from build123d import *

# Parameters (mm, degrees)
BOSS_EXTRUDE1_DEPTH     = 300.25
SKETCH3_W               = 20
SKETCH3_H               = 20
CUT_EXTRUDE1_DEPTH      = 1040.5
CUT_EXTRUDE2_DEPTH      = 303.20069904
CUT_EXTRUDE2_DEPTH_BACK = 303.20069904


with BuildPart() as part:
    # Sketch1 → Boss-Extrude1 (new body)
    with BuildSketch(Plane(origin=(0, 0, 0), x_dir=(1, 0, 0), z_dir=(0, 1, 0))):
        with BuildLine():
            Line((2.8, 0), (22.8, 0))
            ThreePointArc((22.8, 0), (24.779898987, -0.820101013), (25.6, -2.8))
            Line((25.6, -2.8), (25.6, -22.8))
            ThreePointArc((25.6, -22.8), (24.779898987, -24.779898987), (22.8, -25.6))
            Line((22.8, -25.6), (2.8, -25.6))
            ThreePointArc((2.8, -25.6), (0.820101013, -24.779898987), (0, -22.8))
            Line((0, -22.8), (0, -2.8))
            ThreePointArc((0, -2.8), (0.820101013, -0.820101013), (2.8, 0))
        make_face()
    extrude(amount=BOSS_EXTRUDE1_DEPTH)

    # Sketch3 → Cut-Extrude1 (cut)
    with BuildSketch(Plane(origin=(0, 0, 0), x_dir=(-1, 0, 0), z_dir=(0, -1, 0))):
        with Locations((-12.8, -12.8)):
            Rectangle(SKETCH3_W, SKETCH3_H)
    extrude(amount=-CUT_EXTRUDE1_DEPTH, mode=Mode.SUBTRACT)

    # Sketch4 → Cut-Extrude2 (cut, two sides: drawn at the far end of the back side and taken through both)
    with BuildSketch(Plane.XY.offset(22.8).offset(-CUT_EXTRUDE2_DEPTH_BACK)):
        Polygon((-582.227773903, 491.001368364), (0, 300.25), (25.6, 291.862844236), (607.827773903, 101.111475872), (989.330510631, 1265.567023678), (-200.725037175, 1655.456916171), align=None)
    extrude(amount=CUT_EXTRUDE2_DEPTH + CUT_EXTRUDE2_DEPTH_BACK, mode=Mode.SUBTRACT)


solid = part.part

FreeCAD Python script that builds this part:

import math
import FreeCAD as App
import Part
import Sketcher

V = App.Vector
Q = App.Units.Quantity

doc = App.newDocument("Part")
body = doc.addObject("PartDesign::Body", "Body")

sketch1 = body.newObject("Sketcher::SketchObject", "Sketch")
sketch1.AttachmentSupport = (doc.getObject("XZ_Plane"), [""])
sketch1.MapMode = "FlatFace"
sketch1.addGeometry([
    Part.LineSegment(V(22.8, 0, 0), V(2.8, 0, 0)),
    Part.ArcOfCircle(Part.Circle(V(2.8, 2.8, 0), V(0, 0, 1), 2.8), math.radians(-180), math.radians(-90)),
    Part.LineSegment(V(0, 2.8, 0), V(0, 22.8, 0)),
    Part.ArcOfCircle(Part.Circle(V(2.8, 22.8, 0), V(0, 0, 1), 2.8), math.radians(90), math.radians(180)),
    Part.LineSegment(V(2.8, 25.6, 0), V(22.8, 25.6, 0)),
    Part.ArcOfCircle(Part.Circle(V(22.8, 22.8, 0), V(0, 0, 1), 2.8), math.radians(0), math.radians(90)),
    Part.LineSegment(V(25.6, 22.8, 0), V(25.6, 2.8, 0)),
    Part.ArcOfCircle(Part.Circle(V(22.8, 2.8, 0), V(0, 0, 1), 2.8), math.radians(-90), math.radians(0)),
], False)
sketch1.addConstraint([
    Sketcher.Constraint("Tangent", 0, 2, 1, 2),
    Sketcher.Constraint("Tangent", 1, 1, 2, 1),
    Sketcher.Constraint("Tangent", 2, 2, 3, 2),
    Sketcher.Constraint("Tangent", 3, 1, 4, 1),
    Sketcher.Constraint("Tangent", 4, 2, 5, 2),
    Sketcher.Constraint("Tangent", 5, 1, 6, 1),
    Sketcher.Constraint("Tangent", 6, 2, 7, 2),
    Sketcher.Constraint("Tangent", 7, 1, 0, 1),
    Sketcher.Constraint("Horizontal", 0),
    Sketcher.Constraint("Vertical", 2),
    Sketcher.Constraint("Horizontal", 4),
    Sketcher.Constraint("Vertical", 6),
    Sketcher.Constraint("Equal", 1, 3),
    Sketcher.Constraint("Equal", 3, 5),
    Sketcher.Constraint("Equal", 5, 7),
    Sketcher.Constraint("PointOnObject", 0, 2, -1),
    Sketcher.Constraint("PointOnObject", 1, 1, -2),
    Sketcher.Constraint("Equal", 4, 2),
    Sketcher.Constraint("Radius", 1, Q("2.8 mm")),
    Sketcher.Constraint("DistanceX", 0, 2, 0, 1, Q("20 mm")),
])
pad1 = body.newObject("PartDesign::Pad", "Pad")
pad1.Profile = sketch1
pad1.Length = 300.25
pad1.Reversed = True

sketch2 = body.newObject("Sketcher::SketchObject", "Sketch001")
sketch2.AttachmentSupport = (doc.getObject("XZ_Plane"), [""])
sketch2.MapMode = "FlatFace"
sketch2.addGeometry([
    Part.LineSegment(V(23, 3, 0), V(23, 23, 0)),
    Part.LineSegment(V(23, 23, 0), V(3, 23, 0)),
    Part.LineSegment(V(3, 23, 0), V(3, 3, 0)),
    Part.LineSegment(V(3, 3, 0), V(23, 3, 0)),
], False)
sketch2.addConstraint([
    Sketcher.Constraint("Coincident", 0, 2, 1, 1),
    Sketcher.Constraint("Coincident", 1, 2, 2, 1),
    Sketcher.Constraint("Coincident", 2, 2, 3, 1),
    Sketcher.Constraint("Coincident", 3, 2, 0, 1),
    Sketcher.Constraint("Vertical", 0),
    Sketcher.Constraint("Horizontal", 1),
    Sketcher.Constraint("Vertical", 2),
    Sketcher.Constraint("Horizontal", 3),
    Sketcher.Constraint("Equal", 3, 0),
    Sketcher.Constraint("DistanceX", 1, 2, 1, 1, Q("20 mm")),
    Sketcher.Constraint("DistanceX", -1, 1, 0, 2, Q("22.8 mm")),
    Sketcher.Constraint("DistanceY", -1, 1, 0, 2, Q("22.8 mm")),
])
pocket1 = body.newObject("PartDesign::Pocket", "Pocket")
pocket1.Profile = sketch2
pocket1.Length = 1040.5

sketch3 = body.newObject("Sketcher::SketchObject", "Sketch002")
sketch3.AttachmentSupport = (doc.getObject("XY_Plane"), [""])
sketch3.MapMode = "FlatFace"
sketch3.AttachmentOffset = App.Placement(V(0, 0, 22.8), App.Rotation())
sketch3.addGeometry([
    Part.LineSegment(V(-582, 491, 0), V(0, 300, 0)),
    Part.LineSegment(V(0, 300, 0), V(26, 292, 0)),
    Part.LineSegment(V(26, 292, 0), V(608, 101, 0)),
    Part.LineSegment(V(608, 101, 0), V(989, 1266, 0)),
    Part.LineSegment(V(989, 1266, 0), V(-201, 1655, 0)),
    Part.LineSegment(V(-201, 1655, 0), V(-582, 491, 0)),
], False)
sketch3.addConstraint([
    Sketcher.Constraint("Coincident", 0, 2, 1, 1),
    Sketcher.Constraint("Coincident", 1, 2, 2, 1),
    Sketcher.Constraint("Coincident", 2, 2, 3, 1),
    Sketcher.Constraint("Coincident", 3, 2, 4, 1),
    Sketcher.Constraint("Coincident", 4, 2, 5, 1),
    Sketcher.Constraint("Coincident", 5, 2, 0, 1),
    Sketcher.Constraint("PointOnObject", 0, 2, -2),
    Sketcher.Constraint("Parallel", 0, 1),
    Sketcher.Constraint("Parallel", 1, 2),
    Sketcher.Constraint("Perpendicular", 2, 3),
    Sketcher.Constraint("Perpendicular", 3, 4),
    Sketcher.Constraint("Perpendicular", 4, 5),
    Sketcher.Constraint("Equal", 0, 2),
    Sketcher.Constraint("DistanceX", -1, 1, 1, 2, Q("25.6 mm")),
    Sketcher.Constraint("Angle", 0, Q("-18.14 deg")),
    Sketcher.Constraint("DistanceY", -1, 1, 0, 2, Q("300.25 mm")),
    Sketcher.Constraint("Distance", 0, Q("612.678762 mm")),
    Sketcher.Constraint("DistanceX", -1, 1, 3, 2, Q("989.330511 mm")),
])
pocket2 = body.newObject("PartDesign::Pocket", "Pocket001")
pocket2.Profile = sketch3
pocket2.Type = "ThroughAll"
pocket2.Midplane = True

doc.recompute()
